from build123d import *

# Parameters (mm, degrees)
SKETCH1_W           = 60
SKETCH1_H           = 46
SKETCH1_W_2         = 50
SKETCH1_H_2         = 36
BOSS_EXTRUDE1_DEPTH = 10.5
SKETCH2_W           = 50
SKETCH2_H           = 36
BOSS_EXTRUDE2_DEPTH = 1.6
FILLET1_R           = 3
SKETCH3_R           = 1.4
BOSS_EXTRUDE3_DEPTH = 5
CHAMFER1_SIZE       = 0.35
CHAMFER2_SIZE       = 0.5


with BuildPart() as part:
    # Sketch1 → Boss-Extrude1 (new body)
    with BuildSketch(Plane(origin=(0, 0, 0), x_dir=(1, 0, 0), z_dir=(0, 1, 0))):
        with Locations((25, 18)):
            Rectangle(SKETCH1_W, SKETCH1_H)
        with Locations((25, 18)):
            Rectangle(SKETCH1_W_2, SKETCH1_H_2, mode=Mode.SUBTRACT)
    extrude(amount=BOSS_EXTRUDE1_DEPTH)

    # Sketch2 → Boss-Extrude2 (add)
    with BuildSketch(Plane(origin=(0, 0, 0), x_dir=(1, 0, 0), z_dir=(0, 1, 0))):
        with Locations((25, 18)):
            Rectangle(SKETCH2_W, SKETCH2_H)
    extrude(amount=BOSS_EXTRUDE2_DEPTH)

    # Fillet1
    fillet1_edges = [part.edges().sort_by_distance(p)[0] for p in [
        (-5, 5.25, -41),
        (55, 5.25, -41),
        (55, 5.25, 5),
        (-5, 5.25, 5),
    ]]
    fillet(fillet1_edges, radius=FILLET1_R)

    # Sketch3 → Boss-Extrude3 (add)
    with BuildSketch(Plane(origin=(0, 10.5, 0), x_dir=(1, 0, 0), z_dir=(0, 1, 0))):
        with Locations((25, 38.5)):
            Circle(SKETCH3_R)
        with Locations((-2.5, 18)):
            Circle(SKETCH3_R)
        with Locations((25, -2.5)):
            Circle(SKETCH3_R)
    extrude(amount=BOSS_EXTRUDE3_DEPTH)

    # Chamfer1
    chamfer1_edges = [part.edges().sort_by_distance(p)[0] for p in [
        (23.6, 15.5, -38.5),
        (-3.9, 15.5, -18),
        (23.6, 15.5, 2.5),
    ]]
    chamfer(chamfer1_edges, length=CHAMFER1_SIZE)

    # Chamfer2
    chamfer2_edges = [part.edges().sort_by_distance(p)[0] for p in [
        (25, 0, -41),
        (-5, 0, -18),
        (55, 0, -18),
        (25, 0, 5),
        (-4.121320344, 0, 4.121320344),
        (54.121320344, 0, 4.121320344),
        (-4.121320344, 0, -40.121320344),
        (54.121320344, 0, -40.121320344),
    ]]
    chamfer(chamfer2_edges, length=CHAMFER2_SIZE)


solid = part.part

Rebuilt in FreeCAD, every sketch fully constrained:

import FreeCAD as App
import Part
import Sketcher

V = App.Vector


def edges_at(feature, points):
    """Names of the edges that pass closest to the given points."""
    edges = feature.Shape.Edges
    near = lambda p: min(range(len(edges)), key=lambda i: edges[i].distToShape(Part.Vertex(*p))[0])
    return sorted({f"Edge{near(p) + 1}" for p in points})


def add_polygon(sketch, points):
    """Adds a closed chain of lines whose ends are joined by coincident constraints."""
    first, n = sketch.GeometryCount, len(points)
    for a, b in zip(points, points[1:] + points[:1]):
        sketch.addGeometry(Part.LineSegment(App.Vector(*a, 0), App.Vector(*b, 0)), False)
    for i in range(n):
        sketch.addConstraint(Sketcher.Constraint("Coincident", first + i, 2, first + (i + 1) % n, 1))

doc = App.newDocument("Part")
params = doc.addObject("Spreadsheet::Sheet", "Params")
for row, (alias, value) in enumerate([
    ("sketch1_width", "60 mm"),
    ("sketch1_width2", "50 mm"),
    ("sketch1_height", "46 mm"),
    ("sketch1_height2", "36 mm"),
    ("pad1_length", "10.5 mm"),
    ("sketch2_width", "50 mm"),
    ("sketch2_height", "36 mm"),
    ("pad2_length", "1.6 mm"),
    ("fillet_radius", "3 mm"),
    ("sketch3_diameter", "2.8 mm"),
    ("pad3_length", "5 mm"),
    ("chamfer_size", "0.35 mm"),
    ("chamfer2_size", "0.5 mm"),
], start=1):
    params.set(f"A{row}", alias)
    params.set(f"B{row}", "=" + value)
    params.setAlias(f"B{row}", alias)

body = doc.addObject("PartDesign::Body", "Body")

sketch1 = doc.addObject("Sketcher::SketchObject", "Sketch")
body.addObject(sketch1)
sketch1.AttachmentSupport = (doc.XZ_Plane, [""])
sketch1.MapMode = "FlatFace"
add_polygon(sketch1, [(-5, -41), (-5, 5), (55, 5), (55, -41)])
add_polygon(sketch1, [(50, 0), (0, 0), (0, -36), (50, -36)])
sketch1.addConstraint([
    Sketcher.Constraint("Vertical", 0),
    Sketcher.Constraint("Horizontal", 1),
    Sketcher.Constraint("Vertical", 2),
    Sketcher.Constraint("Horizontal", 3),
    Sketcher.Constraint("Horizontal", 4),
    Sketcher.Constraint("Vertical", 5),
    Sketcher.Constraint("Horizontal", 6),
    Sketcher.Constraint("Vertical", 7),
    Sketcher.Constraint("Coincident", 4, 2, -1, 1),
    Sketcher.Constraint("DistanceX", 1, 1, 1, 2, 60.0),
    Sketcher.Constraint("DistanceX", 4, 2, 4, 1, 50.0),
    Sketcher.Constraint("DistanceY", 0, 1, 0, 2, 46.0),
    Sketcher.Constraint("DistanceY", 5, 2, 5, 1, 36.0),
    Sketcher.Constraint("DistanceX", 0, 2, -1, 1, 5.0),
    Sketcher.Constraint("DistanceY", -1, 1, 0, 2, 5.0),
])
sketch1.setExpression("Constraints[17]", "Params.sketch1_width")
sketch1.setExpression("Constraints[18]", "Params.sketch1_width2")
sketch1.setExpression("Constraints[19]", "Params.sketch1_height")
sketch1.setExpression("Constraints[20]", "Params.sketch1_height2")
pad1 = doc.addObject("PartDesign::Pad", "Pad")
body.addObject(pad1)
pad1.Profile = sketch1
pad1.setExpression("Length", "Params.pad1_length")
pad1.Reversed = True

sketch2 = doc.addObject("Sketcher::SketchObject", "Sketch001")
body.addObject(sketch2)
sketch2.AttachmentSupport = (doc.XZ_Plane, [""])
sketch2.MapMode = "FlatFace"
add_polygon(sketch2, [(0, -36), (0, 0), (50, 0), (50, -36)])
sketch2.addConstraint([
    Sketcher.Constraint("Vertical", 0),
    Sketcher.Constraint("Horizontal", 1),
    Sketcher.Constraint("Vertical", 2),
    Sketcher.Constraint("Horizontal", 3),
    Sketcher.Constraint("Coincident", 0, 2, -1, 1),
    Sketcher.Constraint("DistanceX", 1, 1, 1, 2, 50.0),
    Sketcher.Constraint("DistanceY", 0, 1, 0, 2, 36.0),
])
sketch2.setExpression("Constraints[9]", "Params.sketch2_width")
sketch2.setExpression("Constraints[10]", "Params.sketch2_height")
pad2 = doc.addObject("PartDesign::Pad", "Pad001")
body.addObject(pad2)
pad2.Profile = sketch2
pad2.setExpression("Length", "Params.pad2_length")
pad2.Reversed = True
doc.recompute()

fillet = doc.addObject("PartDesign::Fillet", "Fillet")
body.addObject(fillet)
fillet.Base = (pad2, edges_at(pad2, [
    (-5, 5.25, -41),
    (55, 5.25, -41),
    (55, 5.25, 5),
    (-5, 5.25, 5),
]))
fillet.setExpression("Radius", "Params.fillet_radius")

sketch3 = doc.addObject("Sketcher::SketchObject", "Sketch002")
body.addObject(sketch3)
sketch3.AttachmentSupport = (doc.XZ_Plane, [""])
sketch3.MapMode = "FlatFace"
sketch3.AttachmentOffset = App.Placement(V(0, 0, -10.5), App.Rotation())
sketch3.addGeometry([
    Part.Circle(V(25, -38.5, 0), V(0, 0, 1), 1.4),
    Part.Circle(V(-2.5, -18, 0), V(0, 0, 1), 1.4),
    Part.Circle(V(25, 2.5, 0), V(0, 0, 1), 1.4),
], False)
sketch3.addConstraint([
    Sketcher.Constraint("Equal", 0, 1),
    Sketcher.Constraint("Equal", 1, 2),
    Sketcher.Constraint("Vertical", 0, 3, 2, 3),
    Sketcher.Constraint("Diameter", 0, 2.8),
    Sketcher.Constraint("DistanceX", -1, 1, 0, 3, 25.0),
    Sketcher.Constraint("DistanceY", 1, 3, -1, 1, 18.0),
    Sketcher.Constraint("DistanceY", 0, 3, 2, 3, 41.0),
    Sketcher.Constraint("DistanceY", 0, 3, -1, 1, 38.5),
    Sketcher.Constraint("DistanceX", 1, 3, -1, 1, 2.5),
])
sketch3.setExpression("Constraints[3]", "Params.sketch3_diameter")
pad3 = doc.addObject("PartDesign::Pad", "Pad002")
body.addObject(pad3)
pad3.Profile = sketch3
pad3.setExpression("Length", "Params.pad3_length")
pad3.Reversed = True
doc.recompute()

chamfer = doc.addObject("PartDesign::Chamfer", "Chamfer")
body.addObject(chamfer)
chamfer.Base = (pad3, edges_at(pad3, [(23.6, 15.5, -38.5), (-3.9, 15.5, -18), (23.6, 15.5, 2.5)]))
chamfer.setExpression("Size", "Params.chamfer_size")
doc.recompute()

chamfer2 = doc.addObject("PartDesign::Chamfer", "Chamfer001")
body.addObject(chamfer2)
chamfer2.Base = (chamfer, edges_at(chamfer, [
    (25, 0, -41),
    (-5, 0, -18),
    (55, 0, -18),
    (25, 0, 5),
    (-4.121, 0, 4.121),
    (54.121, 0, 4.121),
    (-4.121, 0, -40.121),
    (54.121, 0, -40.121),
]))
chamfer2.setExpression("Size", "Params.chamfer2_size")

doc.recompute()
